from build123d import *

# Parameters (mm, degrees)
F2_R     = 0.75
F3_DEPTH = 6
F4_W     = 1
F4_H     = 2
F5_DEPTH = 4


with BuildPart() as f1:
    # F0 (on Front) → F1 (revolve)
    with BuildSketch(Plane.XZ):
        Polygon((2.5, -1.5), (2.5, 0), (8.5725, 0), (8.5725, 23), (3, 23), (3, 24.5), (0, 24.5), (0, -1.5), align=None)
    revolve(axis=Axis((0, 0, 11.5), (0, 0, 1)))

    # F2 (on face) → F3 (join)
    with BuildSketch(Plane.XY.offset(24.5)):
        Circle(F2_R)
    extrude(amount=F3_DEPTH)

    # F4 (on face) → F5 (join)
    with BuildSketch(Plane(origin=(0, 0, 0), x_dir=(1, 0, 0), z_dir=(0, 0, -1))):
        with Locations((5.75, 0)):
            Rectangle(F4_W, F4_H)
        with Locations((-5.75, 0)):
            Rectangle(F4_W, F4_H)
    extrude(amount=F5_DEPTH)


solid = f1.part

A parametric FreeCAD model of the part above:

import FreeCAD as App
import Part
import Sketcher
from FreeCAD import Vector
Q = App.Units.Quantity


def add_polygon(sketch, points):
    """Adds a closed chain of lines whose ends are joined by coincident constraints."""
    first, n = sketch.GeometryCount, len(points)
    for a, b in zip(points, points[1:] + points[:1]):
        sketch.addGeometry(Part.LineSegment(App.Vector(*a, 0), App.Vector(*b, 0)), False)
    for i in range(n):
        sketch.addConstraint(Sketcher.Constraint("Coincident", first + i, 2, first + (i + 1) % n, 1))

doc = App.newDocument("Part")
body = doc.addObject("PartDesign::Body", "Body")

# Sketch on XZ plane
sketch1 = body.newObject("Sketcher::SketchObject", "Sketch")
sketch1.AttachmentSupport = (doc.getObject("XZ_Plane"), [""])
sketch1.MapMode = "FlatFace"
add_polygon(sketch1, [(2.5, -1.5), (2.5, 0), (8.5725, 0), (8.5725, 23), (3, 23), (3, 24.5), (0, 24.5), (0, -1.5)])  # lines 0-7
sketch1.addConstraint([
    Sketcher.Constraint("Vertical", 0),
    Sketcher.Constraint("Horizontal", 1),
    Sketcher.Constraint("Vertical", 2),
    Sketcher.Constraint("Horizontal", 3),
    Sketcher.Constraint("Vertical", 4),
    Sketcher.Constraint("Horizontal", 5),
    Sketcher.Constraint("Vertical", 6),
    Sketcher.Constraint("Horizontal", 7),
    Sketcher.Constraint("PointOnObject", 0, 2, -1),
    Sketcher.Constraint("PointOnObject", 5, 2, -2),
    Sketcher.Constraint("Equal", 0, 4),
    Sketcher.Constraint("DistanceX", 5, 2, 5, 1, Q("3 mm")),
    Sketcher.Constraint("DistanceY", 2, 1, 2, 2, Q("23 mm")),
    Sketcher.Constraint("DistanceY", 6, 2, 6, 1, Q("26 mm")),
    Sketcher.Constraint("DistanceX", 7, 1, 7, 2, Q("2.5 mm")),
    Sketcher.Constraint("DistanceX", 1, 1, 1, 2, Q("6.0725 mm")),
])
revolution = body.newObject("PartDesign::Revolution", "Revolution")
revolution.Profile = sketch1
revolution.ReferenceAxis = (sketch1, ["V_Axis"])
revolution.Angle = 360

# Sketch on XY plane
sketch2 = body.newObject("Sketcher::SketchObject", "Sketch001")
sketch2.AttachmentSupport = (doc.getObject("XY_Plane"), [""])
sketch2.MapMode = "FlatFace"
sketch2.AttachmentOffset = App.Placement(Vector(0, 0, 24.5), App.Rotation())
sketch2.addGeometry(Part.Circle(Vector(0, 0, 0), Vector(0, 0, 1), 0.75), False)
sketch2.addConstraint([
    Sketcher.Constraint("Coincident", 0, 3, -1, 1),
    Sketcher.Constraint("Diameter", 0, Q("1.5 mm")),
])
pad1 = body.newObject("PartDesign::Pad", "Pad")
pad1.Profile = sketch2
pad1.Length = 6

# Sketch on XY plane
sketch3 = body.newObject("Sketcher::SketchObject", "Sketch002")
sketch3.AttachmentSupport = (doc.getObject("XY_Plane"), [""])
sketch3.MapMode = "FlatFace"
add_polygon(sketch3, [(5.25, -1), (5.25, 1), (6.25, 1), (6.25, -1)])  # lines 0-3
add_polygon(sketch3, [(-6.25, -1), (-6.25, 1), (-5.25, 1), (-5.25, -1)])  # lines 4-7
sketch3.addConstraint([
    Sketcher.Constraint("Vertical", 0),
    Sketcher.Constraint("Horizontal", 1),
    Sketcher.Constraint("Vertical", 2),
    Sketcher.Constraint("Horizontal", 3),
    Sketcher.Constraint("Vertical", 4),
    Sketcher.Constraint("Horizontal", 5),
    Sketcher.Constraint("Vertical", 6),
    Sketcher.Constraint("Horizontal", 7),
    Sketcher.Constraint("Symmetric", 2, 2, 4, 2, -1, 1),
    Sketcher.Constraint("Symmetric", 0, 2, 6, 2, -1, 1),
    Sketcher.Constraint("Horizontal", 1, 2, 4, 2),
    Sketcher.Constraint("DistanceX", 1, 1, 1, 2, Q("1 mm")),
    Sketcher.Constraint("DistanceY", 0, 1, 0, 2, Q("2 mm")),
    Sketcher.Constraint("DistanceX", 4, 2, 0, 2, Q("11.5 mm")),
])
pad2 = body.newObject("PartDesign::Pad", "Pad001")
pad2.Profile = sketch3
pad2.Length = 4
pad2.Reversed = True

doc.recompute()
